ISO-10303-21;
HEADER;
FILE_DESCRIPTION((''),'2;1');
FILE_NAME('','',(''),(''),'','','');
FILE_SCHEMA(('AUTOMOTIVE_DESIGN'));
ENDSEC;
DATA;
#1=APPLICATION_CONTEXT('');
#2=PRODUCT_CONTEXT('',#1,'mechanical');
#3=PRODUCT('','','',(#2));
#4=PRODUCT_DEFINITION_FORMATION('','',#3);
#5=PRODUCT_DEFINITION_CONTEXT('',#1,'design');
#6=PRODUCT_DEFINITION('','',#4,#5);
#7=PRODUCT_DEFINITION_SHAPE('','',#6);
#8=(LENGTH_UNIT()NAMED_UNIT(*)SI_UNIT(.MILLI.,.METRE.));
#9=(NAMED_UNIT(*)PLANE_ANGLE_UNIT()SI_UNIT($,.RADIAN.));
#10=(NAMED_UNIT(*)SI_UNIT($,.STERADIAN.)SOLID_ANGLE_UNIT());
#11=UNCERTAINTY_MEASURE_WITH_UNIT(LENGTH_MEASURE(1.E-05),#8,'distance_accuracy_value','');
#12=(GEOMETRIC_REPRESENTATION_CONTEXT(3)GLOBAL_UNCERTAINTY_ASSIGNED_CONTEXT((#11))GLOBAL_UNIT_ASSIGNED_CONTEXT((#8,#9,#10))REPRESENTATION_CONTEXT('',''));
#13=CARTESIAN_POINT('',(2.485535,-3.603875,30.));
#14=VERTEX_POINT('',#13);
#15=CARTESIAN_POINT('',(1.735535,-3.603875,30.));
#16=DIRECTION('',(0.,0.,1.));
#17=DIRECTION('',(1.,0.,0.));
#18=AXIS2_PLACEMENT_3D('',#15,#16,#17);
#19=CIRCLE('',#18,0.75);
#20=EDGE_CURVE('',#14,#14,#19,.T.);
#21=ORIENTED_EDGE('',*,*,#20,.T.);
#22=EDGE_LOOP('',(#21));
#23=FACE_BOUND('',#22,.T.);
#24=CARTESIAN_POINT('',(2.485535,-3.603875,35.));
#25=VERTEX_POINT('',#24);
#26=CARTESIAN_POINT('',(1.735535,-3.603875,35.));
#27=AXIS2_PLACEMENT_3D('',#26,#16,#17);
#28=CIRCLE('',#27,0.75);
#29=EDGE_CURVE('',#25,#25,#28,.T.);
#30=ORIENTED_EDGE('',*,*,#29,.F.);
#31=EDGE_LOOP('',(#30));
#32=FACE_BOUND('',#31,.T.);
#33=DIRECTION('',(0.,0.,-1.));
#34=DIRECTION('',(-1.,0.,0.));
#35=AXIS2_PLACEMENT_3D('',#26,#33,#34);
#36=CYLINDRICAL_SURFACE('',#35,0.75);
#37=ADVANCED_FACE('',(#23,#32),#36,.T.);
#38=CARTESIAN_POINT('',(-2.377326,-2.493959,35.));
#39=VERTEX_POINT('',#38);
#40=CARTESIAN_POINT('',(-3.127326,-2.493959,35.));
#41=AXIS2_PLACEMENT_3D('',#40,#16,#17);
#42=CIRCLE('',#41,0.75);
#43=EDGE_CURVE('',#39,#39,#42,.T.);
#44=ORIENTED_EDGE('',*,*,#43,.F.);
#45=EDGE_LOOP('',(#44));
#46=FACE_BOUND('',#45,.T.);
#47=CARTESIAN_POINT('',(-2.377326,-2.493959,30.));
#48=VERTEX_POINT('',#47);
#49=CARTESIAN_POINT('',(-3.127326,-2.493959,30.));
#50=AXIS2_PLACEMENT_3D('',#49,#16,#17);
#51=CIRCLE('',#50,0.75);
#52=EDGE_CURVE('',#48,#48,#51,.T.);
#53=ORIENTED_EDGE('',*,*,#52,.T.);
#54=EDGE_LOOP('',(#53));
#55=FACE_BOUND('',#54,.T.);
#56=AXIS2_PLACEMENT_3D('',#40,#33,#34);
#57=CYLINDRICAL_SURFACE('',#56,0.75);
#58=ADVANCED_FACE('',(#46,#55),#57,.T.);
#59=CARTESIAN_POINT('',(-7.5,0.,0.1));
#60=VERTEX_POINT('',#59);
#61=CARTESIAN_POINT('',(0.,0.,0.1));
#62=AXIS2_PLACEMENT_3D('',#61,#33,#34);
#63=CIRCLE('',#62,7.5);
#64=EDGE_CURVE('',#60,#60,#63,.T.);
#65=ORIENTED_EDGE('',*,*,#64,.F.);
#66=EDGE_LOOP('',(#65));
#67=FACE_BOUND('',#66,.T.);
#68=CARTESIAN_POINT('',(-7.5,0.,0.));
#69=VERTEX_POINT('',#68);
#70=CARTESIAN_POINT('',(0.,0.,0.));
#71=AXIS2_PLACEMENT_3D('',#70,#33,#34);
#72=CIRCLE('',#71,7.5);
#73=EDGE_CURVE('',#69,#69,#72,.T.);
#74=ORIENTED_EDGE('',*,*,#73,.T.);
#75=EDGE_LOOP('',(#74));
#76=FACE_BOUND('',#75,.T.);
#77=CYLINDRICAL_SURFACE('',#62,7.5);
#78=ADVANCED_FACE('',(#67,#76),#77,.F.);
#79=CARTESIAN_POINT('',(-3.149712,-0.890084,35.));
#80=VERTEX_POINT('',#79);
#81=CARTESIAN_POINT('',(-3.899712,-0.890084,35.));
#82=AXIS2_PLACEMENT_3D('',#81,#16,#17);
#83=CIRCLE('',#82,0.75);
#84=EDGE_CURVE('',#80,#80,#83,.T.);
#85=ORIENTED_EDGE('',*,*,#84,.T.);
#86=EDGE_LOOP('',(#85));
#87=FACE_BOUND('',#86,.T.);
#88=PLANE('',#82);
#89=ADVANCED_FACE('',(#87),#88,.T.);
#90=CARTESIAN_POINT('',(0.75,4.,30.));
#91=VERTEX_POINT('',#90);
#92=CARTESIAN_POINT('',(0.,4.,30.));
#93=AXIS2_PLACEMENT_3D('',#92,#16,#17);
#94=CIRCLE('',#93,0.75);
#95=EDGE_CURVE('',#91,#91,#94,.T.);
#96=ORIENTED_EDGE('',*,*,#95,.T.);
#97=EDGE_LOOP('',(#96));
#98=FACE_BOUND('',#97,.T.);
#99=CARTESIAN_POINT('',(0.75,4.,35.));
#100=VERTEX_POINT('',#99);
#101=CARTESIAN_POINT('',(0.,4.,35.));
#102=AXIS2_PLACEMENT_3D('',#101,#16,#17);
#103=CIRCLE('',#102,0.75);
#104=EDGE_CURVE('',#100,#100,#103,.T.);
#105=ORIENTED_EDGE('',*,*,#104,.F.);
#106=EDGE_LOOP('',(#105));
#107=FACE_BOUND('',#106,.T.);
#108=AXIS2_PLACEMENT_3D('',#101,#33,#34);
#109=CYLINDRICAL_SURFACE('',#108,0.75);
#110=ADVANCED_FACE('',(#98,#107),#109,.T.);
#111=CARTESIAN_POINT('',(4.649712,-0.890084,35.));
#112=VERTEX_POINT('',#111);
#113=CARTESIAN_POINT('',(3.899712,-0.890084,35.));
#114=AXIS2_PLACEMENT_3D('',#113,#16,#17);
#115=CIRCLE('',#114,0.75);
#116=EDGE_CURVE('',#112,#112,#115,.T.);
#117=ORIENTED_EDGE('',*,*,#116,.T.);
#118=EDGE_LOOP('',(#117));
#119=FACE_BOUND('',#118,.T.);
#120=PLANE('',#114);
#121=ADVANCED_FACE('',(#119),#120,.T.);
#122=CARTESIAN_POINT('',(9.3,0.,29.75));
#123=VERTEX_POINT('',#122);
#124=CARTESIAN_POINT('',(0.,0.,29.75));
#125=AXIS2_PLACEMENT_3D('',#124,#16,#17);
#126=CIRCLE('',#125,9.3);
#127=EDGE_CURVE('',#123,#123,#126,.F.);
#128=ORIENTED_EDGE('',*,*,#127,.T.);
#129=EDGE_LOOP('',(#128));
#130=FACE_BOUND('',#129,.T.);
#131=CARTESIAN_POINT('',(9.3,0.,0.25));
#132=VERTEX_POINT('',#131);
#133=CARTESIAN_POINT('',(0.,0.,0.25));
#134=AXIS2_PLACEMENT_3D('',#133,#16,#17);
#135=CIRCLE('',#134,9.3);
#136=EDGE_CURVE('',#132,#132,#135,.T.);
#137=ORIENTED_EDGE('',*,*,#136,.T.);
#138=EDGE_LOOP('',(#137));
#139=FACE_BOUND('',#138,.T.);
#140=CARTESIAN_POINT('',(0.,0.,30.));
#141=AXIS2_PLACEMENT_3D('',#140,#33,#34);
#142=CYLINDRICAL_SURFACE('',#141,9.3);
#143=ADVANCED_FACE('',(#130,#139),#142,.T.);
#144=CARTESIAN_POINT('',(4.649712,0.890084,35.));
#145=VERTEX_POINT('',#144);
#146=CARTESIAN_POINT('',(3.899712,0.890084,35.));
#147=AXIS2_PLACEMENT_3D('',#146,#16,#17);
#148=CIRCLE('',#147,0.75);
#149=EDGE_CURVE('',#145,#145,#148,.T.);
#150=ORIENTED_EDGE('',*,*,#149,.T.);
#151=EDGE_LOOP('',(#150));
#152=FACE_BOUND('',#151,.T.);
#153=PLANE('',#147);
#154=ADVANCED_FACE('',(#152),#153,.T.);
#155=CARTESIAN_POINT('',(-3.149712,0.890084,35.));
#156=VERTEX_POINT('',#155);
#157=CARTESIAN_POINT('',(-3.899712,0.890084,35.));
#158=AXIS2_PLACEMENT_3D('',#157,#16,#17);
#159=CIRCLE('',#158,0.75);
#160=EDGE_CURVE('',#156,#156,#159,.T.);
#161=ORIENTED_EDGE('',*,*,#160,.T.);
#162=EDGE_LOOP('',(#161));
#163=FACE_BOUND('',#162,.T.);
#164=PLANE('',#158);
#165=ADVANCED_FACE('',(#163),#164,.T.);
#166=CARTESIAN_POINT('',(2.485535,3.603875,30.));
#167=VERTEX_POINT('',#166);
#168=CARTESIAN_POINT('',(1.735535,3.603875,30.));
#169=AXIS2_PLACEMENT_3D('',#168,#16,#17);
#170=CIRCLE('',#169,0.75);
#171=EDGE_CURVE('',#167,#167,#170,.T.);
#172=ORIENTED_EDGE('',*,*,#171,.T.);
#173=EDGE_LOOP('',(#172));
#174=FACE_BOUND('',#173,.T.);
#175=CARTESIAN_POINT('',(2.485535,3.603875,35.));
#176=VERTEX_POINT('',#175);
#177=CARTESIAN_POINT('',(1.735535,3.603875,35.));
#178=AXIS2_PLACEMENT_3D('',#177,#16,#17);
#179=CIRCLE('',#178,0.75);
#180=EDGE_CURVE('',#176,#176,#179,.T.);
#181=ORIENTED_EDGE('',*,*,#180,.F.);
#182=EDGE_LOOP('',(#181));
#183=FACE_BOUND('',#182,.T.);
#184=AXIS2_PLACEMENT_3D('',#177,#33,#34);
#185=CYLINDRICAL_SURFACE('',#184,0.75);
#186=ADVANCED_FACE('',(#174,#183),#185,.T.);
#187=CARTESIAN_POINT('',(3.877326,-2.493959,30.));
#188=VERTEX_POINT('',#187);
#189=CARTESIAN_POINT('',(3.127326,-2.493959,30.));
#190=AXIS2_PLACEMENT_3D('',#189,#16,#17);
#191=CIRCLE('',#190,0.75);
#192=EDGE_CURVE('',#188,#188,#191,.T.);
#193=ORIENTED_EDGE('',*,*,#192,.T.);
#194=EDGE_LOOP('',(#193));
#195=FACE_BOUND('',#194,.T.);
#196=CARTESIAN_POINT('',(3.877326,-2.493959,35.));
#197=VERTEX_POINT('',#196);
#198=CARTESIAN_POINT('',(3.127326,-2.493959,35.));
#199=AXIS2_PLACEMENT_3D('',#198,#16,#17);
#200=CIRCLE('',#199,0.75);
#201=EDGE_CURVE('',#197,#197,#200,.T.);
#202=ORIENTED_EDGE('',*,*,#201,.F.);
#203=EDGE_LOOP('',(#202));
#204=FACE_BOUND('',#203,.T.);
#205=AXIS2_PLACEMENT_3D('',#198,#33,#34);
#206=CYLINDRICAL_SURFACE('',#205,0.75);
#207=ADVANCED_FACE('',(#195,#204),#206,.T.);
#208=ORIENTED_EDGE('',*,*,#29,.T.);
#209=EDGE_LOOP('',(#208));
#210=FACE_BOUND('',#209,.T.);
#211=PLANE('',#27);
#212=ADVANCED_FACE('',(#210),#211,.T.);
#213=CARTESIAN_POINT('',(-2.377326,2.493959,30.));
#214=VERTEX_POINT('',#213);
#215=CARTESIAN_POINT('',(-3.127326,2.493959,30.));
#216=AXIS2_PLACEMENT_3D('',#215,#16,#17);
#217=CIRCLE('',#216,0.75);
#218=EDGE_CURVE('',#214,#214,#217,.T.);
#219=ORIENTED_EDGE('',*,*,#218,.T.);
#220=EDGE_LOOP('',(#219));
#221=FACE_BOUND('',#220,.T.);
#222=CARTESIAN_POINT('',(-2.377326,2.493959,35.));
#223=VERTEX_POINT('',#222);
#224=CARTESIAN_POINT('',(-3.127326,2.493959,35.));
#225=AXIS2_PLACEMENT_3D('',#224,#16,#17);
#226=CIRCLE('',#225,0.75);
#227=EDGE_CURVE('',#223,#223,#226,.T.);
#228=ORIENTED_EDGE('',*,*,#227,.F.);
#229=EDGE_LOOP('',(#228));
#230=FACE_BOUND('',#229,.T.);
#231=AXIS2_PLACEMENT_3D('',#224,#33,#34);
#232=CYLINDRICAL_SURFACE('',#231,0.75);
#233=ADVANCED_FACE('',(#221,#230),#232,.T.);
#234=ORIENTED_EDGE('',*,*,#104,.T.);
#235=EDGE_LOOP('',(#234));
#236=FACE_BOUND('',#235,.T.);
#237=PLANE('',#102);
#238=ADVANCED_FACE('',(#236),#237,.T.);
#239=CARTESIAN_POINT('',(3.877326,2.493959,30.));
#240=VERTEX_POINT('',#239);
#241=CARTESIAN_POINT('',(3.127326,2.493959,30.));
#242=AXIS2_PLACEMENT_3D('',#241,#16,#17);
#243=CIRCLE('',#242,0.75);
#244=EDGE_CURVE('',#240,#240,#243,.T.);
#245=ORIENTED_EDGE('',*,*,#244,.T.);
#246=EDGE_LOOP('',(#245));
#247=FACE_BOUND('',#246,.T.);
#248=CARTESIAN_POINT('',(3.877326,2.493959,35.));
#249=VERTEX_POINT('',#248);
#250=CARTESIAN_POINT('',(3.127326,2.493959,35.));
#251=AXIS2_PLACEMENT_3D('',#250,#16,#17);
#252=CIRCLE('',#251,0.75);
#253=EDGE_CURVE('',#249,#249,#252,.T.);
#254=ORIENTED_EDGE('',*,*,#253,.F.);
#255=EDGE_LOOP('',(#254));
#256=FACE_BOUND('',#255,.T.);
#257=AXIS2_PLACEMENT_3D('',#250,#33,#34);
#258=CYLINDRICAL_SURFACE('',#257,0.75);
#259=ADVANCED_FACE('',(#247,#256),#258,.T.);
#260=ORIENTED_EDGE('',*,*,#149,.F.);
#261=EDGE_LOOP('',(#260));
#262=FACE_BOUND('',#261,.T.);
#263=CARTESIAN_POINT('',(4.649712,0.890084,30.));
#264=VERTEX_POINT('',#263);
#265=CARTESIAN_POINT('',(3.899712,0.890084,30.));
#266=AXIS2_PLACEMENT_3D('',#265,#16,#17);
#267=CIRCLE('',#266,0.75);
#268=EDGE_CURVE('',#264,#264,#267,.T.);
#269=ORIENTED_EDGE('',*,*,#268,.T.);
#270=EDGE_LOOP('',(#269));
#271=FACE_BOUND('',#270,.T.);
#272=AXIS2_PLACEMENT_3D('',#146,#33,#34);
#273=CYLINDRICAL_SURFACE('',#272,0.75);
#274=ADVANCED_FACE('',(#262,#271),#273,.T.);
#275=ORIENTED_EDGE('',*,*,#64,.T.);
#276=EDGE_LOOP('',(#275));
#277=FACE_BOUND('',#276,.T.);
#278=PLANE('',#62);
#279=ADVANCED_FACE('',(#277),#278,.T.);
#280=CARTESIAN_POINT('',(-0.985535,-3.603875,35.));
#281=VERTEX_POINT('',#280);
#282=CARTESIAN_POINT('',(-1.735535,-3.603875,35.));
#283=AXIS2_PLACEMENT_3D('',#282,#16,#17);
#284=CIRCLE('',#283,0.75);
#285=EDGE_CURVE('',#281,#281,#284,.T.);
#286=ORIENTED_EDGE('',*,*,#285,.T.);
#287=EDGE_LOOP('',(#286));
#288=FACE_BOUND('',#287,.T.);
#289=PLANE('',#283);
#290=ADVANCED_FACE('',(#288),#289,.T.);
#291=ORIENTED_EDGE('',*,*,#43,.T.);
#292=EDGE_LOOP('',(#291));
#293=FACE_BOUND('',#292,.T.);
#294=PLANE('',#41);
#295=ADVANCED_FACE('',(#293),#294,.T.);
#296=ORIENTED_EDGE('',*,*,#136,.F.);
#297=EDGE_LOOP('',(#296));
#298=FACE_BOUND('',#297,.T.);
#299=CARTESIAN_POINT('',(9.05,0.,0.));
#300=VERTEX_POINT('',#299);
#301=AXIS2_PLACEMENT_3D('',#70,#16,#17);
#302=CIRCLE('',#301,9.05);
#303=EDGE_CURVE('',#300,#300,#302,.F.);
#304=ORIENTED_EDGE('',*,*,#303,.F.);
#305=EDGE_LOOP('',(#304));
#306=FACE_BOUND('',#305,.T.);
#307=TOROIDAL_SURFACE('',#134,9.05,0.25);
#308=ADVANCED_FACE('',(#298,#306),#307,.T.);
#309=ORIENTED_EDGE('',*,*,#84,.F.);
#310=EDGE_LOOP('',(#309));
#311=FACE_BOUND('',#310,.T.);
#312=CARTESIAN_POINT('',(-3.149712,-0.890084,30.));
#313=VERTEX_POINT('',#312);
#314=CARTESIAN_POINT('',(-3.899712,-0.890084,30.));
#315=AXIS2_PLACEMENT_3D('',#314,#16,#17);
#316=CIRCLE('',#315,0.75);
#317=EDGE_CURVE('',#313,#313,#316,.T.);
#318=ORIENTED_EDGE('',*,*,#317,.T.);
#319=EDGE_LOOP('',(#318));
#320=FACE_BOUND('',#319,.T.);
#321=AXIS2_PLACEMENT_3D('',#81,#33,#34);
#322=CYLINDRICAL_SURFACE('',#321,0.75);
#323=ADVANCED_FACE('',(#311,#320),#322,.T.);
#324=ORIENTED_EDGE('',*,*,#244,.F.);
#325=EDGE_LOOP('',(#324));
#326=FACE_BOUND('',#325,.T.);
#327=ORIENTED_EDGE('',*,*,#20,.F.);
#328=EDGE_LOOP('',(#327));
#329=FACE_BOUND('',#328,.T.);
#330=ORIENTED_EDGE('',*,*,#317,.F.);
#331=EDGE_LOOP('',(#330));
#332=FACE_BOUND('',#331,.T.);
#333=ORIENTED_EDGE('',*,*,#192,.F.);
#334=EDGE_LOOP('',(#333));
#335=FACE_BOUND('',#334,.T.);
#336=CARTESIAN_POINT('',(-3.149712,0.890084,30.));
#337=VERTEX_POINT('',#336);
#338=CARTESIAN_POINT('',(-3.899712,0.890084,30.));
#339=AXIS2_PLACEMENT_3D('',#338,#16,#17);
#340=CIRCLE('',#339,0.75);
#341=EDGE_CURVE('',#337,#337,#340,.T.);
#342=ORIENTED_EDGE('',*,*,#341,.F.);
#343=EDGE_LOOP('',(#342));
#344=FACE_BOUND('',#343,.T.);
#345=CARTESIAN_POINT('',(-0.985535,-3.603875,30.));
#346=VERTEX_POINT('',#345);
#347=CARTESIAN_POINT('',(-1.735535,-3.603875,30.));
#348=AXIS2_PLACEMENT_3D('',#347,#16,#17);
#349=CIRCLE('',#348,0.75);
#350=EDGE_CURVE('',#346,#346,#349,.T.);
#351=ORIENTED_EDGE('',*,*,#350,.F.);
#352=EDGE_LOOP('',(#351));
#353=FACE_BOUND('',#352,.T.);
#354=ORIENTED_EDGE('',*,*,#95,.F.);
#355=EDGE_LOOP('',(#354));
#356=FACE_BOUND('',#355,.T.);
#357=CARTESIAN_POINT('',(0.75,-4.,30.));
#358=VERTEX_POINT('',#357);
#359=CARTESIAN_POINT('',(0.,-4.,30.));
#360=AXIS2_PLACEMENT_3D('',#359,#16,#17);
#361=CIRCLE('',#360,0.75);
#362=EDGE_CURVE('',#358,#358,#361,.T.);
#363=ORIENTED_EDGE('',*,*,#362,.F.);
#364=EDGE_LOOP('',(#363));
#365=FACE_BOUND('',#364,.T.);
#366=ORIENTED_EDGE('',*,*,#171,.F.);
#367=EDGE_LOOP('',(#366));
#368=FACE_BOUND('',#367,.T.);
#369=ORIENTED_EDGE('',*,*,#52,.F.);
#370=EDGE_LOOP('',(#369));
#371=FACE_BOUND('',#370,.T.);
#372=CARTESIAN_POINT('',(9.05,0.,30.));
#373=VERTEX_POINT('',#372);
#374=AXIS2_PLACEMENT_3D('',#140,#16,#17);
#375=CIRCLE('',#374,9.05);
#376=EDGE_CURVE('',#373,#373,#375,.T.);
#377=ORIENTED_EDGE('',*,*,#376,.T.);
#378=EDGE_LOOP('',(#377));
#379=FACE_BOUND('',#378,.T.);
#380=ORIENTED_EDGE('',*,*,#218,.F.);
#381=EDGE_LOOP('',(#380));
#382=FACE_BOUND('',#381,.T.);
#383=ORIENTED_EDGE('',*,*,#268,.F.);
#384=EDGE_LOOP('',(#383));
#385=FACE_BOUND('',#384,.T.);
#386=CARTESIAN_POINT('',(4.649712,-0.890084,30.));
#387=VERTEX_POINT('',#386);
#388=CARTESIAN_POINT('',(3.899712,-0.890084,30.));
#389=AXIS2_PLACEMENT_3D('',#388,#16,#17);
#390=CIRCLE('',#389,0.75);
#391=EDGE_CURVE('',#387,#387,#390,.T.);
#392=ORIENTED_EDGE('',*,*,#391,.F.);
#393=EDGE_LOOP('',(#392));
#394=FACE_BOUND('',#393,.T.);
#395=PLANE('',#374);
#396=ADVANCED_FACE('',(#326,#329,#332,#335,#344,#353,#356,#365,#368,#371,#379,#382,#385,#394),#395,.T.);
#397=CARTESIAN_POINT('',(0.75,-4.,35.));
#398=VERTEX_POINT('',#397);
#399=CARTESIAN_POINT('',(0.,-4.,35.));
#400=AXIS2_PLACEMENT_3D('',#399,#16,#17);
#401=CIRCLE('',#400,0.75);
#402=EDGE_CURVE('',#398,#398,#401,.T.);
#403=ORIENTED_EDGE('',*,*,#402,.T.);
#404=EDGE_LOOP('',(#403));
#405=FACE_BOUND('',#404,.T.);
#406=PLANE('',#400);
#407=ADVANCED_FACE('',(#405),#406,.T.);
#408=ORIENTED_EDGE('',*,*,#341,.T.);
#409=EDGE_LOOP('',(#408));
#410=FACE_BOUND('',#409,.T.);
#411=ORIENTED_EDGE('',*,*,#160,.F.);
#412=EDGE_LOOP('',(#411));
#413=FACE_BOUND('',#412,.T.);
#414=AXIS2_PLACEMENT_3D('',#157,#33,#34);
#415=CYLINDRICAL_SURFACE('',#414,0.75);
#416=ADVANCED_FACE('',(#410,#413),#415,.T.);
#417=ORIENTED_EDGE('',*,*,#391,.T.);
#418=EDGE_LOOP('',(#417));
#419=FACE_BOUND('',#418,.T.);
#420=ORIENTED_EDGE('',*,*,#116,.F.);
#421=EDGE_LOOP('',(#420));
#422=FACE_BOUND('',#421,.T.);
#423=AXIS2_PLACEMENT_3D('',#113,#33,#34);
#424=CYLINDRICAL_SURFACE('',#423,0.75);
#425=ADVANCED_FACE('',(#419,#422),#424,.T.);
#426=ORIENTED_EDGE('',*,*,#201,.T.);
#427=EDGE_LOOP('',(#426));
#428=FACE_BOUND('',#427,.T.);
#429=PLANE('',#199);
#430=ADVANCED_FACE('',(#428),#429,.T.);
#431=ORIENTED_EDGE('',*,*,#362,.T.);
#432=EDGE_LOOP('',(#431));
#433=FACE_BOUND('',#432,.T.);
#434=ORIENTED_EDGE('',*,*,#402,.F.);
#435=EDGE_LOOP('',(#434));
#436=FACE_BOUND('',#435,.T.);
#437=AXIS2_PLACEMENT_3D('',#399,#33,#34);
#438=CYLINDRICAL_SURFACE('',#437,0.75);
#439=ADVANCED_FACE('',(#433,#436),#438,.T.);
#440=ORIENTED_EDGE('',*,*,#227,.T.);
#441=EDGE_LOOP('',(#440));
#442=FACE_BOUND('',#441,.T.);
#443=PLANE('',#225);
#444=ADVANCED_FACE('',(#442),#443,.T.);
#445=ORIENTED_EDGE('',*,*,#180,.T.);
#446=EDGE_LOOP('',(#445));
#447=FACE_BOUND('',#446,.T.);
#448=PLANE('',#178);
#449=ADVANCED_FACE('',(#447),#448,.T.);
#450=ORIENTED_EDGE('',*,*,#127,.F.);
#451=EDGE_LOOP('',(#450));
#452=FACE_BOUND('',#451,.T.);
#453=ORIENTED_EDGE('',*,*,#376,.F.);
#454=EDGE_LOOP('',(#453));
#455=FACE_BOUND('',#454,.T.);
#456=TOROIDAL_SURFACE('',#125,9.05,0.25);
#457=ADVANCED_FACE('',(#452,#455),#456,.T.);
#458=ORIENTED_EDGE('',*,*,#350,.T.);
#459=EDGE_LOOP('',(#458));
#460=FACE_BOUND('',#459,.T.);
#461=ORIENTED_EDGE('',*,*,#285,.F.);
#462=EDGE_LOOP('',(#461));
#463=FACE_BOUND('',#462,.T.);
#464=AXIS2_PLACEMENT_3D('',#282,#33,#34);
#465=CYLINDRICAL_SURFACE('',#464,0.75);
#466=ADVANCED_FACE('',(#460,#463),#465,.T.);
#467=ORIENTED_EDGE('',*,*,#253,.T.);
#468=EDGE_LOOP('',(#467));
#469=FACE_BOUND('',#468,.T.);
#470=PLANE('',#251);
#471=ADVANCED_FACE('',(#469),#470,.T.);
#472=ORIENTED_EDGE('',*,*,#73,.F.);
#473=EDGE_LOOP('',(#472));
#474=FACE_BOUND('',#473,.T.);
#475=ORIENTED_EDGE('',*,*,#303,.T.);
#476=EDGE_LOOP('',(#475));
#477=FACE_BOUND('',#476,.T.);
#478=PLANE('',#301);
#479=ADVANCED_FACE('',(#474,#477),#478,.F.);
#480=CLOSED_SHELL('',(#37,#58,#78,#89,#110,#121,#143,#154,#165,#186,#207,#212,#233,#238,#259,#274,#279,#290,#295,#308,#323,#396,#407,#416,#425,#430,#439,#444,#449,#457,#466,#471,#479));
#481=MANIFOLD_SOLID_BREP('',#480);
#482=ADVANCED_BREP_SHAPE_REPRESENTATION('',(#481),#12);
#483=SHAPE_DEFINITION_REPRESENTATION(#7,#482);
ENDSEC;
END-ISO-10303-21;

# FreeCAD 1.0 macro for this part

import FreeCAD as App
import Part
import Sketcher
from FreeCAD import Vector


def edges_at(feature, points):
    """Names of the edges that pass closest to the given points."""
    edges = feature.Shape.Edges
    near = lambda p: min(range(len(edges)), key=lambda i: edges[i].distToShape(Part.Vertex(*p))[0])
    return sorted({f"Edge{near(p) + 1}" for p in points})

doc = App.newDocument("Part")
body = doc.addObject("PartDesign::Body", "Body")

sketch1 = body.newObject("Sketcher::SketchObject", "Sketch")
sketch1.AttachmentSupport = (doc.getObject("XY_Plane"), [""])
sketch1.MapMode = "FlatFace"
sketch1.addGeometry(Part.Circle(Vector(0, 0, 0), Vector(0, 0, 1), 9.3), False)
sketch1.addConstraint([
    Sketcher.Constraint("Coincident", 0, 3, -1, 1),
    Sketcher.Constraint("Diameter", 0, 18.6),
])
pad1 = body.newObject("PartDesign::Pad", "Pad")
pad1.Profile = sketch1
pad1.Length = 30

sketch2 = body.newObject("Sketcher::SketchObject", "Sketch001")
sketch2.AttachmentSupport = (doc.getObject("XY_Plane"), [""])
sketch2.MapMode = "FlatFace"
sketch2.addGeometry(Part.Circle(Vector(0, 0, 0), Vector(0, 0, 1), 7.5), False)
sketch2.addConstraint([
    Sketcher.Constraint("Coincident", 0, 3, -1, 1),
    Sketcher.Constraint("Diameter", 0, 15.0),
])
pocket1 = body.newObject("PartDesign::Pocket", "Pocket")
pocket1.Profile = sketch2
pocket1.Length = 0.1
pocket1.Reversed = True

sketch3 = body.newObject("Sketcher::SketchObject", "Sketch002")
sketch3.AttachmentSupport = (doc.getObject("XY_Plane"), [""])
sketch3.MapMode = "FlatFace"
sketch3.AttachmentOffset = App.Placement(Vector(0, 0, 30), App.Rotation())
sketch3.addGeometry([
    Part.Circle(Vector(0, 4, 0), Vector(0, 0, 1), 0.75),
    Part.Circle(Vector(1.735535, 3.603875, 0), Vector(0, 0, 1), 0.75),
    Part.Circle(Vector(3.127326, 2.493959, 0), Vector(0, 0, 1), 0.75),
    Part.Circle(Vector(3.899712, 0.890084, 0), Vector(0, 0, 1), 0.75),
    Part.Circle(Vector(3.899712, -0.890084, 0), Vector(0, 0, 1), 0.75),
    Part.Circle(Vector(3.127326, -2.493959, 0), Vector(0, 0, 1), 0.75),
    Part.Circle(Vector(1.735535, -3.603875, 0), Vector(0, 0, 1), 0.75),
    Part.Circle(Vector(0, -4, 0), Vector(0, 0, 1), 0.75),
    Part.Circle(Vector(-1.735535, -3.603875, 0), Vector(0, 0, 1), 0.75),
    Part.Circle(Vector(-3.127326, -2.493959, 0), Vector(0, 0, 1), 0.75),
    Part.Circle(Vector(-3.899712, -0.890084, 0), Vector(0, 0, 1), 0.75),
    Part.Circle(Vector(-3.899712, 0.890084, 0), Vector(0, 0, 1), 0.75),
    Part.Circle(Vector(-3.127326, 2.493959, 0), Vector(0, 0, 1), 0.75),
], False)
sketch3.addConstraint([
    Sketcher.Constraint("Equal", 0, 1),
    Sketcher.Constraint("Equal", 1, 2),
    Sketcher.Constraint("Equal", 2, 3),
    Sketcher.Constraint("Equal", 3, 4),
    Sketcher.Constraint("Equal", 4, 5),
    Sketcher.Constraint("Equal", 5, 6),
    Sketcher.Constraint("Equal", 6, 7),
    Sketcher.Constraint("Equal", 7, 8),
    Sketcher.Constraint("Equal", 8, 9),
    Sketcher.Constraint("Equal", 9, 10),
    Sketcher.Constraint("Equal", 10, 11),
    Sketcher.Constraint("Equal", 11, 12),
    Sketcher.Constraint("Symmetric", 0, 3, 7, 3, -1, 1),
    Sketcher.Constraint("Symmetric", 1, 3, 8, 3, -1, 1),
    Sketcher.Constraint("Symmetric", 2, 3, 9, 3, -1, 1),
    Sketcher.Constraint("Symmetric", 3, 3, 10, 3, -1, 1),
    Sketcher.Constraint("Symmetric", 4, 3, 11, 3, -1, 1),
    Sketcher.Constraint("Symmetric", 5, 3, 12, 3, -1, 1),
    Sketcher.Constraint("Symmetric", 6, 3, 8, 3, -2),
    Sketcher.Constraint("Symmetric", 5, 3, 9, 3, -2),
    Sketcher.Constraint("Symmetric", 4, 3, 10, 3, -2),
    Sketcher.Constraint("PointOnObject", 0, 3, -2),
    Sketcher.Constraint("Diameter", 0, 1.5),
    Sketcher.Constraint("DistanceY", -1, 1, 0, 3, 4.0),
    Sketcher.Constraint("DistanceY", -1, 1, 2, 3, 2.493959),
    Sketcher.Constraint("DistanceX", -1, 1, 3, 3, 3.899712),
    Sketcher.Constraint("DistanceX", 1, 3, 2, 3, 1.391791),
    Sketcher.Constraint("DistanceY", 3, 3, 1, 3, 2.713792),
    Sketcher.Constraint("DistanceY", 4, 3, 1, 3, 4.493959),
    Sketcher.Constraint("DistanceX", 8, 3, 6, 3, 3.47107),
])
pad2 = body.newObject("PartDesign::Pad", "Pad001")
pad2.Profile = sketch3
pad2.Length = 5
doc.recompute()

fillet = body.newObject("PartDesign::Fillet", "Fillet")
fillet.Base = (pad2, edges_at(pad2, [(-9.3, 0, 0), (-9.3, 0, 30)]))
fillet.Radius = 0.25

doc.recompute()
